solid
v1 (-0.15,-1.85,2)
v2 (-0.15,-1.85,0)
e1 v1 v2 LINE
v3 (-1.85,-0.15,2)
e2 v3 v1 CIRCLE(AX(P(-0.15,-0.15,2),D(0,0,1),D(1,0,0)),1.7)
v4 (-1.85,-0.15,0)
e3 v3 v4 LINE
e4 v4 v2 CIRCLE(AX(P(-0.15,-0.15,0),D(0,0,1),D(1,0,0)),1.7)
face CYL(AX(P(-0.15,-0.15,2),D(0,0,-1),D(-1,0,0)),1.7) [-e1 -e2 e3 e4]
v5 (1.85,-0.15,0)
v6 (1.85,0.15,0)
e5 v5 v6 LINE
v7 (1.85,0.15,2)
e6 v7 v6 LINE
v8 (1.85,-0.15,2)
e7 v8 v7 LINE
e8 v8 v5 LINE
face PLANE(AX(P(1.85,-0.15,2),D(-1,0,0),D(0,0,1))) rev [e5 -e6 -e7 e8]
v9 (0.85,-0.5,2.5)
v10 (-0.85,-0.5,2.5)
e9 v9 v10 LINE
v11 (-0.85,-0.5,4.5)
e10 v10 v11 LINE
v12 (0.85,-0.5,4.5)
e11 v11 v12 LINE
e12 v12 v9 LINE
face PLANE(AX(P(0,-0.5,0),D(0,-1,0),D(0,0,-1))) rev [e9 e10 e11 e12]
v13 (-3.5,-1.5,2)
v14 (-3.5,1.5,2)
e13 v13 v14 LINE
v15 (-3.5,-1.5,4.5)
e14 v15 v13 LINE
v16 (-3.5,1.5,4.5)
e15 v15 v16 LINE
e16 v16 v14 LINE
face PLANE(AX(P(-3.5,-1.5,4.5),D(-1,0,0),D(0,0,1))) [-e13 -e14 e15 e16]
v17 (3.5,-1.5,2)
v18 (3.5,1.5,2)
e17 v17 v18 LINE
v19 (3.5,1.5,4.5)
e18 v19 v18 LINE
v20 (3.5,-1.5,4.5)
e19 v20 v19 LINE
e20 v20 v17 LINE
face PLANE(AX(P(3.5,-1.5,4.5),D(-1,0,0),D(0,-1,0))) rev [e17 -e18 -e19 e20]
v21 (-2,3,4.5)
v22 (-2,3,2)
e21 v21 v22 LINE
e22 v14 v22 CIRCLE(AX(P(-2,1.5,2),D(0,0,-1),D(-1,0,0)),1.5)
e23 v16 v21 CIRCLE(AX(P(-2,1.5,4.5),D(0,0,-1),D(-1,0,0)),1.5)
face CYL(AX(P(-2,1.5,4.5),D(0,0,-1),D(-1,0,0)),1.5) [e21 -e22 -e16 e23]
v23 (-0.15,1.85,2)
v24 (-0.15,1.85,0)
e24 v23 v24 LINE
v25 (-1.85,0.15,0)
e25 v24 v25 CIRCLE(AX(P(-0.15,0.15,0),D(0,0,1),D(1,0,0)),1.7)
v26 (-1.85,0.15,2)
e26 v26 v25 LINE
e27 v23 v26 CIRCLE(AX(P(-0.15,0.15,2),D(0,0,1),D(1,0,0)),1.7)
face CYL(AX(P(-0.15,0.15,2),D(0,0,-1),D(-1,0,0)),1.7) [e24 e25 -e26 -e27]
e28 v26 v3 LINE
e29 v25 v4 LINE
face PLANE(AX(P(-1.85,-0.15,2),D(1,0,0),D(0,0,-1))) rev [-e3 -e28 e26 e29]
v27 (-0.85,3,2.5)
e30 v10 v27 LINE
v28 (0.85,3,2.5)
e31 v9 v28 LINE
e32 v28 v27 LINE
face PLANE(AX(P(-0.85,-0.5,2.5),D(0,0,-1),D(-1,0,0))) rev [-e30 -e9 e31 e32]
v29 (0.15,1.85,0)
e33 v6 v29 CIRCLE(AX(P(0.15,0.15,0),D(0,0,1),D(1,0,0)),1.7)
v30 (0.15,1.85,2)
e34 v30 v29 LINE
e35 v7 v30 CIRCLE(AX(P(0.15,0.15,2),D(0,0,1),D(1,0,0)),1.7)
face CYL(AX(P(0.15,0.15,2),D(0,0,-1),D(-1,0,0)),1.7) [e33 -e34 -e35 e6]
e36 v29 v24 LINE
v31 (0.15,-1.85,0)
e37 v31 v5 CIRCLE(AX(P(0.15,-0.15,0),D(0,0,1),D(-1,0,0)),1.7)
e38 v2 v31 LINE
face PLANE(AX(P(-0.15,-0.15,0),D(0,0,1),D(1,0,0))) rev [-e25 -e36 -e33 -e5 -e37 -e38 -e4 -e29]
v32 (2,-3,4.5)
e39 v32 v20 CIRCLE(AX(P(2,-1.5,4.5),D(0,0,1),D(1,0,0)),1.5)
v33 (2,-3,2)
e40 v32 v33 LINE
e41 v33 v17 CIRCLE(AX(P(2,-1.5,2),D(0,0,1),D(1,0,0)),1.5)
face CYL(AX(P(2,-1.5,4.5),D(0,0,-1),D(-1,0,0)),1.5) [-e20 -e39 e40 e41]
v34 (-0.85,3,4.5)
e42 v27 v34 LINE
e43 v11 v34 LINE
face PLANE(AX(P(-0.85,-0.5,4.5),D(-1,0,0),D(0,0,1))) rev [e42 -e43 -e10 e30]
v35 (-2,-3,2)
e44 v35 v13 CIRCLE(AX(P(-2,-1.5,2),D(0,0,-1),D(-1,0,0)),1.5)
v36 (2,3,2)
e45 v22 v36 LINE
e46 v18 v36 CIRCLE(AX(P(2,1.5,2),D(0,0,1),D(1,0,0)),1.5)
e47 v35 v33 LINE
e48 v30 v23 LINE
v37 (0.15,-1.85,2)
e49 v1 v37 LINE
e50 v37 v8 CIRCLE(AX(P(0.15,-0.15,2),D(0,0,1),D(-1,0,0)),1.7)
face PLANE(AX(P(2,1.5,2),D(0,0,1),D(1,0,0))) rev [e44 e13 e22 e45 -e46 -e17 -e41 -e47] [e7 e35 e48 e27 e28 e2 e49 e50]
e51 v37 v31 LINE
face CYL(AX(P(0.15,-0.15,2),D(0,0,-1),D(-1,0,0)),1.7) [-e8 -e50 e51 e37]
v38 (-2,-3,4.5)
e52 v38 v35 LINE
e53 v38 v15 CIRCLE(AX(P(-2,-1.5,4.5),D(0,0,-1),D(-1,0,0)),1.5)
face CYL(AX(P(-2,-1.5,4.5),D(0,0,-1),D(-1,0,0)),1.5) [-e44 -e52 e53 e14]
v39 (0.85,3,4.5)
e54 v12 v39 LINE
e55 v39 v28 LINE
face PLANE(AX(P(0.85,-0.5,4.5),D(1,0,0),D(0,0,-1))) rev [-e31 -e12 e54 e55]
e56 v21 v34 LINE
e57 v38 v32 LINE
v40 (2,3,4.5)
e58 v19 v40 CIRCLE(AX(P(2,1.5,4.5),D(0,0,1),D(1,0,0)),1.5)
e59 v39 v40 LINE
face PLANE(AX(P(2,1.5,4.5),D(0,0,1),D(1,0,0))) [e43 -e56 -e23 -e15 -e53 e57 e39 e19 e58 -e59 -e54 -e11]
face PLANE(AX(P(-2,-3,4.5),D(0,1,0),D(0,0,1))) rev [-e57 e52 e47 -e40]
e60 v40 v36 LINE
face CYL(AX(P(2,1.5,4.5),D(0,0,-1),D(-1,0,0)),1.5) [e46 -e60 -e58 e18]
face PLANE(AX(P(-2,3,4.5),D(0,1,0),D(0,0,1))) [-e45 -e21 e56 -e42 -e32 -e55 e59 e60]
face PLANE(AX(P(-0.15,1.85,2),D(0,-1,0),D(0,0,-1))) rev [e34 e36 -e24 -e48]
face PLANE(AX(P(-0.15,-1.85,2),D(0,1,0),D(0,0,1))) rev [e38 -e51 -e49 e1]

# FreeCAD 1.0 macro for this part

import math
import FreeCAD as App
import Part
import Sketcher
from FreeCAD import Vector

doc = App.newDocument("Part")
params = doc.addObject("Spreadsheet::Sheet", "Params")
for row, (alias, value) in enumerate([
    ("sketch1_radius", "1.7 mm"),
    ("sketch1_width", "0.3 mm"),
    ("pad1_length", "2 mm"),
    ("sketch2_radius", "1.5 mm"),
    ("sketch2_width", "4 mm"),
    ("sketch2_height", "3 mm"),
    ("pad2_length", "2.5 mm"),
    ("sketch3_height", "2 mm"),
    ("sketch3_width", "1.7 mm"),
    ("pocket1_length", "3.5 mm"),
], start=1):
    params.set(f"A{row}", alias)
    params.set(f"B{row}", "=" + value)
    params.setAlias(f"B{row}", alias)

body = doc.addObject("PartDesign::Body", "Body")

sketch1 = body.newObject("Sketcher::SketchObject", "Sketch")
sketch1.AttachmentSupport = (doc.getObject("XY_Plane"), [""])
sketch1.MapMode = "FlatFace"
sketch1.addGeometry(Part.LineSegment(Vector(-0.15, -1.85, 0), Vector(0.15, -1.85, 0)), False)
sketch1.addGeometry(Part.ArcOfCircle(Part.Circle(Vector(0.15, -0.15, 0), Vector(0, 0, 1), 1.7), math.radians(-90), math.radians(0)), False)
sketch1.addGeometry(Part.LineSegment(Vector(1.85, -0.15, 0), Vector(1.85, 0.15, 0)), False)
sketch1.addGeometry(Part.ArcOfCircle(Part.Circle(Vector(0.15, 0.15, 0), Vector(0, 0, 1), 1.7), math.radians(0), math.radians(90)), False)
sketch1.addGeometry(Part.LineSegment(Vector(0.15, 1.85, 0), Vector(-0.15, 1.85, 0)), False)
sketch1.addGeometry(Part.ArcOfCircle(Part.Circle(Vector(-0.15, 0.15, 0), Vector(0, 0, 1), 1.7), math.radians(90), math.radians(180)), False)
sketch1.addGeometry(Part.LineSegment(Vector(-1.85, 0.15, 0), Vector(-1.85, -0.15, 0)), False)
sketch1.addGeometry(Part.ArcOfCircle(Part.Circle(Vector(-0.15, -0.15, 0), Vector(0, 0, 1), 1.7), math.radians(180), math.radians(270)), False)
sketch1.addConstraint(Sketcher.Constraint("Tangent", 0, 2, 1, 1))
sketch1.addConstraint(Sketcher.Constraint("Tangent", 1, 2, 2, 1))
sketch1.addConstraint(Sketcher.Constraint("Tangent", 2, 2, 3, 1))
sketch1.addConstraint(Sketcher.Constraint("Tangent", 3, 2, 4, 1))
sketch1.addConstraint(Sketcher.Constraint("Tangent", 4, 2, 5, 1))
sketch1.addConstraint(Sketcher.Constraint("Tangent", 5, 2, 6, 1))
sketch1.addConstraint(Sketcher.Constraint("Tangent", 6, 2, 7, 1))
sketch1.addConstraint(Sketcher.Constraint("Tangent", 7, 2, 0, 1))
sketch1.addConstraint(Sketcher.Constraint("Horizontal", 0))
sketch1.addConstraint(Sketcher.Constraint("Vertical", 2))
sketch1.addConstraint(Sketcher.Constraint("Horizontal", 4))
sketch1.addConstraint(Sketcher.Constraint("Vertical", 6))
sketch1.addConstraint(Sketcher.Constraint("Equal", 1, 3))
sketch1.addConstraint(Sketcher.Constraint("Equal", 3, 5))
sketch1.addConstraint(Sketcher.Constraint("Equal", 5, 7))
sketch1.addConstraint(Sketcher.Constraint("Symmetric", 1, 3, 5, 3, -1, 1))
sketch1.addConstraint(Sketcher.Constraint("Equal", 4, 2))
sketch1.addConstraint(Sketcher.Constraint("Radius", 1, 1.7))
sketch1.addConstraint(Sketcher.Constraint("DistanceX", 0, 1, 0, 2, 0.3))
sketch1.setExpression("Constraints[17]", "Params.sketch1_radius")
sketch1.setExpression("Constraints[18]", "Params.sketch1_width")
pad1 = body.newObject("PartDesign::Pad", "Pad")
pad1.Profile = sketch1
pad1.setExpression("Length", "Params.pad1_length")

sketch2 = body.newObject("Sketcher::SketchObject", "Sketch001")
sketch2.AttachmentSupport = (doc.getObject("XY_Plane"), [""])
sketch2.MapMode = "FlatFace"
sketch2.AttachmentOffset = App.Placement(Vector(0, 0, 2), App.Rotation())
sketch2.addGeometry(Part.LineSegment(Vector(-2, -3, 0), Vector(2, -3, 0)), False)
sketch2.addGeometry(Part.ArcOfCircle(Part.Circle(Vector(2, -1.5, 0), Vector(0, 0, 1), 1.5), math.radians(-90), math.radians(0)), False)
sketch2.addGeometry(Part.LineSegment(Vector(3.5, -1.5, 0), Vector(3.5, 1.5, 0)), False)
sketch2.addGeometry(Part.ArcOfCircle(Part.Circle(Vector(2, 1.5, 0), Vector(0, 0, 1), 1.5), math.radians(0), math.radians(90)), False)
sketch2.addGeometry(Part.LineSegment(Vector(2, 3, 0), Vector(-2, 3, 0)), False)
sketch2.addGeometry(Part.ArcOfCircle(Part.Circle(Vector(-2, 1.5, 0), Vector(0, 0, 1), 1.5), math.radians(90), math.radians(180)), False)
sketch2.addGeometry(Part.LineSegment(Vector(-3.5, 1.5, 0), Vector(-3.5, -1.5, 0)), False)
sketch2.addGeometry(Part.ArcOfCircle(Part.Circle(Vector(-2, -1.5, 0), Vector(0, 0, 1), 1.5), math.radians(180), math.radians(270)), False)
sketch2.addConstraint(Sketcher.Constraint("Tangent", 0, 2, 1, 1))
sketch2.addConstraint(Sketcher.Constraint("Tangent", 1, 2, 2, 1))
sketch2.addConstraint(Sketcher.Constraint("Tangent", 2, 2, 3, 1))
sketch2.addConstraint(Sketcher.Constraint("Tangent", 3, 2, 4, 1))
sketch2.addConstraint(Sketcher.Constraint("Tangent", 4, 2, 5, 1))
sketch2.addConstraint(Sketcher.Constraint("Tangent", 5, 2, 6, 1))
sketch2.addConstraint(Sketcher.Constraint("Tangent", 6, 2, 7, 1))
sketch2.addConstraint(Sketcher.Constraint("Tangent", 7, 2, 0, 1))
sketch2.addConstraint(Sketcher.Constraint("Horizontal", 0))
sketch2.addConstraint(Sketcher.Constraint("Vertical", 2))
sketch2.addConstraint(Sketcher.Constraint("Horizontal", 4))
sketch2.addConstraint(Sketcher.Constraint("Vertical", 6))
sketch2.addConstraint(Sketcher.Constraint("Equal", 1, 3))
sketch2.addConstraint(Sketcher.Constraint("Equal", 3, 5))
sketch2.addConstraint(Sketcher.Constraint("Equal", 5, 7))
sketch2.addConstraint(Sketcher.Constraint("Symmetric", 1, 3, 5, 3, -1, 1))
sketch2.addConstraint(Sketcher.Constraint("Radius", 1, 1.5))
sketch2.addConstraint(Sketcher.Constraint("DistanceX", 0, 1, 0, 2, 4.0))
sketch2.addConstraint(Sketcher.Constraint("DistanceY", 2, 1, 2, 2, 3.0))
sketch2.setExpression("Constraints[16]", "Params.sketch2_radius")
sketch2.setExpression("Constraints[17]", "Params.sketch2_width")
sketch2.setExpression("Constraints[18]", "Params.sketch2_height")
pad2 = body.newObject("PartDesign::Pad", "Pad001")
pad2.Profile = sketch2
pad2.setExpression("Length", "Params.pad2_length")

sketch3 = body.newObject("Sketcher::SketchObject", "Sketch002")
sketch3.AttachmentSupport = (doc.getObject("XZ_Plane"), [""])
sketch3.MapMode = "FlatFace"
sketch3.AttachmentOffset = App.Placement(Vector(0, 0, -3), App.Rotation())
sketch3.addGeometry(Part.LineSegment(Vector(-0.8, 2.5, 0), Vector(-0.8, 4.5, 0)), False)
sketch3.addGeometry(Part.LineSegment(Vector(-0.8, 4.5, 0), Vector(0.8, 4.5, 0)), False)
sketch3.addGeometry(Part.LineSegment(Vector(0.8, 4.5, 0), Vector(0.8, 2.5, 0)), False)
sketch3.addGeometry(Part.LineSegment(Vector(0.8, 2.5, 0), Vector(-0.8, 2.5, 0)), False)
sketch3.addConstraint(Sketcher.Constraint("Coincident", 0, 2, 1, 1))
sketch3.addConstraint(Sketcher.Constraint("Coincident", 1, 2, 2, 1))
sketch3.addConstraint(Sketcher.Constraint("Coincident", 2, 2, 3, 1))
sketch3.addConstraint(Sketcher.Constraint("Coincident", 3, 2, 0, 1))
sketch3.addConstraint(Sketcher.Constraint("Vertical", 0))
sketch3.addConstraint(Sketcher.Constraint("Horizontal", 1))
sketch3.addConstraint(Sketcher.Constraint("Vertical", 2))
sketch3.addConstraint(Sketcher.Constraint("Horizontal", 3))
sketch3.addConstraint(Sketcher.Constraint("DistanceY", 0, 1, 0, 2, 2.0))
sketch3.addConstraint(Sketcher.Constraint("DistanceX", 1, 1, 1, 2, 1.7))
sketch3.addConstraint(Sketcher.Constraint("DistanceY", -1, 1, 0, 2, 4.5))
sketch3.addConstraint(Sketcher.Constraint("DistanceX", 0, 2, -1, 1, 0.85))
sketch3.setExpression("Constraints[8]", "Params.sketch3_height")
sketch3.setExpression("Constraints[9]", "Params.sketch3_width")
pocket1 = body.newObject("PartDesign::Pocket", "Pocket")
pocket1.Profile = sketch3
pocket1.setExpression("Length", "Params.pocket1_length")
pocket1.Reversed = True

doc.recompute()
